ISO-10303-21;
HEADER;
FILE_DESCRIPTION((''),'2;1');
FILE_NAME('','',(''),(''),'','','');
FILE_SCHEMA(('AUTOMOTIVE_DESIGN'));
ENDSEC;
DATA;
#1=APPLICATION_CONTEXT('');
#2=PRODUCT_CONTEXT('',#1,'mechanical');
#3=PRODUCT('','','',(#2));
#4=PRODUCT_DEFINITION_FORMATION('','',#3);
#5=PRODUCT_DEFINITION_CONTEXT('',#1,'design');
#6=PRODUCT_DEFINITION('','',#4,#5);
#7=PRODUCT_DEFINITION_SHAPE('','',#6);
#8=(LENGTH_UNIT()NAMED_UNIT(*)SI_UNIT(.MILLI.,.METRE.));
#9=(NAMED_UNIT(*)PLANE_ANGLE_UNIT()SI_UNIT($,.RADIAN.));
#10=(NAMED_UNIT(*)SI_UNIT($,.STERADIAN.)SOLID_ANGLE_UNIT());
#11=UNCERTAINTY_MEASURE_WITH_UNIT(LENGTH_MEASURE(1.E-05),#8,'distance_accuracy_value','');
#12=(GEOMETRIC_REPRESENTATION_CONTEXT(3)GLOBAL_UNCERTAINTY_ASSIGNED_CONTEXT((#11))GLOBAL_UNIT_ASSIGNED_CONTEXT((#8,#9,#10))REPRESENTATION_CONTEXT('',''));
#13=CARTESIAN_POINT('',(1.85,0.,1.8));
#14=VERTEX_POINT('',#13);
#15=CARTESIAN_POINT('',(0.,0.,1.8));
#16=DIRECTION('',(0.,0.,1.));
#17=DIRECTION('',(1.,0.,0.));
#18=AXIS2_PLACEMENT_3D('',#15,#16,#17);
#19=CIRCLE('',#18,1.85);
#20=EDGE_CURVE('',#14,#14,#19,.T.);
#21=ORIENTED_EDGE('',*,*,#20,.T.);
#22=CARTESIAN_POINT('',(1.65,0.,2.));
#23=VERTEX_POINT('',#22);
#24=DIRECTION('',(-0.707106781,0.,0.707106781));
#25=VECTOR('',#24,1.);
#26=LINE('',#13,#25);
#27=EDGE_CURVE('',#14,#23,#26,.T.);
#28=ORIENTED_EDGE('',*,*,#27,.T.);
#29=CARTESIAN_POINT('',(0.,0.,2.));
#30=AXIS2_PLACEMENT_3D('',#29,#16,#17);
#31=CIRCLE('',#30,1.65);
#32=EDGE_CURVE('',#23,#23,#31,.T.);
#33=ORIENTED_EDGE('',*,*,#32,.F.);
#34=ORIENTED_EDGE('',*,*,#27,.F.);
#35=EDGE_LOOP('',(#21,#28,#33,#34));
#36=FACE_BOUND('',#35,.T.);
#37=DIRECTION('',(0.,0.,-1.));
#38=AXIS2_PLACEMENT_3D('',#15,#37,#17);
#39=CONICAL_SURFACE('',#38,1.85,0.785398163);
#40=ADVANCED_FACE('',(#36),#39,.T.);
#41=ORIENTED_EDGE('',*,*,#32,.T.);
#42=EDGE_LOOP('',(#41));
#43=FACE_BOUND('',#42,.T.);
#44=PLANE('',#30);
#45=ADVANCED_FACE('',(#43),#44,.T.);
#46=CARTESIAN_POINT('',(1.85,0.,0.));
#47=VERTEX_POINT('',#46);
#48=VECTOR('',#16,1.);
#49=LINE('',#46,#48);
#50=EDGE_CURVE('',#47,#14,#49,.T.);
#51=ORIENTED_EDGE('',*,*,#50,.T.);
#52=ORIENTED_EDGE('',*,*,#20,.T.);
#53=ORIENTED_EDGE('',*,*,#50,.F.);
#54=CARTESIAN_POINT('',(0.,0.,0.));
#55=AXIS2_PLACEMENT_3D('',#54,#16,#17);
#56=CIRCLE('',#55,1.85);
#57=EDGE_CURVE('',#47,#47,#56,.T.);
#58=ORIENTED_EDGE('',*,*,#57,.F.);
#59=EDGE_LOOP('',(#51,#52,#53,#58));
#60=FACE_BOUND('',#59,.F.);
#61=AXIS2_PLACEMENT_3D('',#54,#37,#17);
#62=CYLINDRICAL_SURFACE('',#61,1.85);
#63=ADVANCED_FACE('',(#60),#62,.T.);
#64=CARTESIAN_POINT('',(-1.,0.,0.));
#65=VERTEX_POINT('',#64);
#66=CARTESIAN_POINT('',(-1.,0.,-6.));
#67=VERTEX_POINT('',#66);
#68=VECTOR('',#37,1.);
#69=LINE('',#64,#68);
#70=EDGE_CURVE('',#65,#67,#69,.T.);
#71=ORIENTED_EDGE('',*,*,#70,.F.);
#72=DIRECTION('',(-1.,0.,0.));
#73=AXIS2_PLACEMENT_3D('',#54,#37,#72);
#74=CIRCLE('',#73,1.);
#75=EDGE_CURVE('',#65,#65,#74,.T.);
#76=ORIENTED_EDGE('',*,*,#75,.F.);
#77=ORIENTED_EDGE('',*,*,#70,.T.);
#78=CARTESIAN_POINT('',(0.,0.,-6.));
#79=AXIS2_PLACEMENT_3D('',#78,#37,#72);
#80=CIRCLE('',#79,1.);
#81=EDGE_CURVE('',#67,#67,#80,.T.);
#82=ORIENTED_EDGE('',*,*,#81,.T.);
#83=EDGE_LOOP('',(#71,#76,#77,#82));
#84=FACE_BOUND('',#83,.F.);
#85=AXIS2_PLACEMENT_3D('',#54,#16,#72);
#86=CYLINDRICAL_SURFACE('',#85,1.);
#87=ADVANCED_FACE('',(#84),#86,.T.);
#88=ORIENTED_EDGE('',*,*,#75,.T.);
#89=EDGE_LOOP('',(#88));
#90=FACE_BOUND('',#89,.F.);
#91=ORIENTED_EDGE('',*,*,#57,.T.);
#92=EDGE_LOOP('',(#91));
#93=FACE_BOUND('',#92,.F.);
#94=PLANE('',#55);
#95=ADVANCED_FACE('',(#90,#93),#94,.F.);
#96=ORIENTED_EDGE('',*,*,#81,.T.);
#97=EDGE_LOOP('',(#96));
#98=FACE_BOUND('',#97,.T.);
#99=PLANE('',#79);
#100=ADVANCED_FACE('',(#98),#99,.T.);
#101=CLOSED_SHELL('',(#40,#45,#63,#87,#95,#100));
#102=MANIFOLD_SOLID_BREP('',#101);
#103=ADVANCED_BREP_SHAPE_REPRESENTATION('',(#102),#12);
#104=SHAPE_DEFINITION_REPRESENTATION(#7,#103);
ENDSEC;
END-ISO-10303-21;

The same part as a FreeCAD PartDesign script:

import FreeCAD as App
import Part
import Sketcher

V = App.Vector


def edges_at(feature, points):
    """Names of the edges that pass closest to the given points."""
    edges = feature.Shape.Edges
    near = lambda p: min(range(len(edges)), key=lambda i: edges[i].distToShape(Part.Vertex(*p))[0])
    return sorted({f"Edge{near(p) + 1}" for p in points})

doc = App.newDocument("Part")
body = doc.addObject("PartDesign::Body", "Body")

sketch1 = body.newObject("Sketcher::SketchObject", "Sketch")
sketch1.AttachmentSupport = (doc.getObject("XY_Plane"), [""])
sketch1.MapMode = "FlatFace"
sketch1.addGeometry(Part.Circle(V(0, 0, 0), V(0, 0, 1), 1.9), False)
sketch1.addConstraint([
    Sketcher.Constraint("Coincident", 0, 3, -1, 1),
    Sketcher.Constraint("Diameter", 0, 3.7),
])
pad1 = body.newObject("PartDesign::Pad", "Pad")
pad1.Profile = sketch1
pad1.Length = 2

sketch2 = body.newObject("Sketcher::SketchObject", "Sketch001")
sketch2.AttachmentSupport = (doc.getObject("XY_Plane"), [""])
sketch2.MapMode = "FlatFace"
sketch2.addGeometry(Part.Circle(V(0, 0, 0), V(0, 0, 1), 1), False)
sketch2.addConstraint([
    Sketcher.Constraint("Coincident", 0, 3, -1, 1),
    Sketcher.Constraint("Diameter", 0, 2.0),
])
pad2 = body.newObject("PartDesign::Pad", "Pad001")
pad2.Profile = sketch2
pad2.Length = 6
pad2.Reversed = True
doc.recompute()

chamfer = body.newObject("PartDesign::Chamfer", "Chamfer")
chamfer.Base = (pad2, edges_at(pad2, [(-1.85, 0, 2)]))
chamfer.Size = 0.2

doc.recompute()
